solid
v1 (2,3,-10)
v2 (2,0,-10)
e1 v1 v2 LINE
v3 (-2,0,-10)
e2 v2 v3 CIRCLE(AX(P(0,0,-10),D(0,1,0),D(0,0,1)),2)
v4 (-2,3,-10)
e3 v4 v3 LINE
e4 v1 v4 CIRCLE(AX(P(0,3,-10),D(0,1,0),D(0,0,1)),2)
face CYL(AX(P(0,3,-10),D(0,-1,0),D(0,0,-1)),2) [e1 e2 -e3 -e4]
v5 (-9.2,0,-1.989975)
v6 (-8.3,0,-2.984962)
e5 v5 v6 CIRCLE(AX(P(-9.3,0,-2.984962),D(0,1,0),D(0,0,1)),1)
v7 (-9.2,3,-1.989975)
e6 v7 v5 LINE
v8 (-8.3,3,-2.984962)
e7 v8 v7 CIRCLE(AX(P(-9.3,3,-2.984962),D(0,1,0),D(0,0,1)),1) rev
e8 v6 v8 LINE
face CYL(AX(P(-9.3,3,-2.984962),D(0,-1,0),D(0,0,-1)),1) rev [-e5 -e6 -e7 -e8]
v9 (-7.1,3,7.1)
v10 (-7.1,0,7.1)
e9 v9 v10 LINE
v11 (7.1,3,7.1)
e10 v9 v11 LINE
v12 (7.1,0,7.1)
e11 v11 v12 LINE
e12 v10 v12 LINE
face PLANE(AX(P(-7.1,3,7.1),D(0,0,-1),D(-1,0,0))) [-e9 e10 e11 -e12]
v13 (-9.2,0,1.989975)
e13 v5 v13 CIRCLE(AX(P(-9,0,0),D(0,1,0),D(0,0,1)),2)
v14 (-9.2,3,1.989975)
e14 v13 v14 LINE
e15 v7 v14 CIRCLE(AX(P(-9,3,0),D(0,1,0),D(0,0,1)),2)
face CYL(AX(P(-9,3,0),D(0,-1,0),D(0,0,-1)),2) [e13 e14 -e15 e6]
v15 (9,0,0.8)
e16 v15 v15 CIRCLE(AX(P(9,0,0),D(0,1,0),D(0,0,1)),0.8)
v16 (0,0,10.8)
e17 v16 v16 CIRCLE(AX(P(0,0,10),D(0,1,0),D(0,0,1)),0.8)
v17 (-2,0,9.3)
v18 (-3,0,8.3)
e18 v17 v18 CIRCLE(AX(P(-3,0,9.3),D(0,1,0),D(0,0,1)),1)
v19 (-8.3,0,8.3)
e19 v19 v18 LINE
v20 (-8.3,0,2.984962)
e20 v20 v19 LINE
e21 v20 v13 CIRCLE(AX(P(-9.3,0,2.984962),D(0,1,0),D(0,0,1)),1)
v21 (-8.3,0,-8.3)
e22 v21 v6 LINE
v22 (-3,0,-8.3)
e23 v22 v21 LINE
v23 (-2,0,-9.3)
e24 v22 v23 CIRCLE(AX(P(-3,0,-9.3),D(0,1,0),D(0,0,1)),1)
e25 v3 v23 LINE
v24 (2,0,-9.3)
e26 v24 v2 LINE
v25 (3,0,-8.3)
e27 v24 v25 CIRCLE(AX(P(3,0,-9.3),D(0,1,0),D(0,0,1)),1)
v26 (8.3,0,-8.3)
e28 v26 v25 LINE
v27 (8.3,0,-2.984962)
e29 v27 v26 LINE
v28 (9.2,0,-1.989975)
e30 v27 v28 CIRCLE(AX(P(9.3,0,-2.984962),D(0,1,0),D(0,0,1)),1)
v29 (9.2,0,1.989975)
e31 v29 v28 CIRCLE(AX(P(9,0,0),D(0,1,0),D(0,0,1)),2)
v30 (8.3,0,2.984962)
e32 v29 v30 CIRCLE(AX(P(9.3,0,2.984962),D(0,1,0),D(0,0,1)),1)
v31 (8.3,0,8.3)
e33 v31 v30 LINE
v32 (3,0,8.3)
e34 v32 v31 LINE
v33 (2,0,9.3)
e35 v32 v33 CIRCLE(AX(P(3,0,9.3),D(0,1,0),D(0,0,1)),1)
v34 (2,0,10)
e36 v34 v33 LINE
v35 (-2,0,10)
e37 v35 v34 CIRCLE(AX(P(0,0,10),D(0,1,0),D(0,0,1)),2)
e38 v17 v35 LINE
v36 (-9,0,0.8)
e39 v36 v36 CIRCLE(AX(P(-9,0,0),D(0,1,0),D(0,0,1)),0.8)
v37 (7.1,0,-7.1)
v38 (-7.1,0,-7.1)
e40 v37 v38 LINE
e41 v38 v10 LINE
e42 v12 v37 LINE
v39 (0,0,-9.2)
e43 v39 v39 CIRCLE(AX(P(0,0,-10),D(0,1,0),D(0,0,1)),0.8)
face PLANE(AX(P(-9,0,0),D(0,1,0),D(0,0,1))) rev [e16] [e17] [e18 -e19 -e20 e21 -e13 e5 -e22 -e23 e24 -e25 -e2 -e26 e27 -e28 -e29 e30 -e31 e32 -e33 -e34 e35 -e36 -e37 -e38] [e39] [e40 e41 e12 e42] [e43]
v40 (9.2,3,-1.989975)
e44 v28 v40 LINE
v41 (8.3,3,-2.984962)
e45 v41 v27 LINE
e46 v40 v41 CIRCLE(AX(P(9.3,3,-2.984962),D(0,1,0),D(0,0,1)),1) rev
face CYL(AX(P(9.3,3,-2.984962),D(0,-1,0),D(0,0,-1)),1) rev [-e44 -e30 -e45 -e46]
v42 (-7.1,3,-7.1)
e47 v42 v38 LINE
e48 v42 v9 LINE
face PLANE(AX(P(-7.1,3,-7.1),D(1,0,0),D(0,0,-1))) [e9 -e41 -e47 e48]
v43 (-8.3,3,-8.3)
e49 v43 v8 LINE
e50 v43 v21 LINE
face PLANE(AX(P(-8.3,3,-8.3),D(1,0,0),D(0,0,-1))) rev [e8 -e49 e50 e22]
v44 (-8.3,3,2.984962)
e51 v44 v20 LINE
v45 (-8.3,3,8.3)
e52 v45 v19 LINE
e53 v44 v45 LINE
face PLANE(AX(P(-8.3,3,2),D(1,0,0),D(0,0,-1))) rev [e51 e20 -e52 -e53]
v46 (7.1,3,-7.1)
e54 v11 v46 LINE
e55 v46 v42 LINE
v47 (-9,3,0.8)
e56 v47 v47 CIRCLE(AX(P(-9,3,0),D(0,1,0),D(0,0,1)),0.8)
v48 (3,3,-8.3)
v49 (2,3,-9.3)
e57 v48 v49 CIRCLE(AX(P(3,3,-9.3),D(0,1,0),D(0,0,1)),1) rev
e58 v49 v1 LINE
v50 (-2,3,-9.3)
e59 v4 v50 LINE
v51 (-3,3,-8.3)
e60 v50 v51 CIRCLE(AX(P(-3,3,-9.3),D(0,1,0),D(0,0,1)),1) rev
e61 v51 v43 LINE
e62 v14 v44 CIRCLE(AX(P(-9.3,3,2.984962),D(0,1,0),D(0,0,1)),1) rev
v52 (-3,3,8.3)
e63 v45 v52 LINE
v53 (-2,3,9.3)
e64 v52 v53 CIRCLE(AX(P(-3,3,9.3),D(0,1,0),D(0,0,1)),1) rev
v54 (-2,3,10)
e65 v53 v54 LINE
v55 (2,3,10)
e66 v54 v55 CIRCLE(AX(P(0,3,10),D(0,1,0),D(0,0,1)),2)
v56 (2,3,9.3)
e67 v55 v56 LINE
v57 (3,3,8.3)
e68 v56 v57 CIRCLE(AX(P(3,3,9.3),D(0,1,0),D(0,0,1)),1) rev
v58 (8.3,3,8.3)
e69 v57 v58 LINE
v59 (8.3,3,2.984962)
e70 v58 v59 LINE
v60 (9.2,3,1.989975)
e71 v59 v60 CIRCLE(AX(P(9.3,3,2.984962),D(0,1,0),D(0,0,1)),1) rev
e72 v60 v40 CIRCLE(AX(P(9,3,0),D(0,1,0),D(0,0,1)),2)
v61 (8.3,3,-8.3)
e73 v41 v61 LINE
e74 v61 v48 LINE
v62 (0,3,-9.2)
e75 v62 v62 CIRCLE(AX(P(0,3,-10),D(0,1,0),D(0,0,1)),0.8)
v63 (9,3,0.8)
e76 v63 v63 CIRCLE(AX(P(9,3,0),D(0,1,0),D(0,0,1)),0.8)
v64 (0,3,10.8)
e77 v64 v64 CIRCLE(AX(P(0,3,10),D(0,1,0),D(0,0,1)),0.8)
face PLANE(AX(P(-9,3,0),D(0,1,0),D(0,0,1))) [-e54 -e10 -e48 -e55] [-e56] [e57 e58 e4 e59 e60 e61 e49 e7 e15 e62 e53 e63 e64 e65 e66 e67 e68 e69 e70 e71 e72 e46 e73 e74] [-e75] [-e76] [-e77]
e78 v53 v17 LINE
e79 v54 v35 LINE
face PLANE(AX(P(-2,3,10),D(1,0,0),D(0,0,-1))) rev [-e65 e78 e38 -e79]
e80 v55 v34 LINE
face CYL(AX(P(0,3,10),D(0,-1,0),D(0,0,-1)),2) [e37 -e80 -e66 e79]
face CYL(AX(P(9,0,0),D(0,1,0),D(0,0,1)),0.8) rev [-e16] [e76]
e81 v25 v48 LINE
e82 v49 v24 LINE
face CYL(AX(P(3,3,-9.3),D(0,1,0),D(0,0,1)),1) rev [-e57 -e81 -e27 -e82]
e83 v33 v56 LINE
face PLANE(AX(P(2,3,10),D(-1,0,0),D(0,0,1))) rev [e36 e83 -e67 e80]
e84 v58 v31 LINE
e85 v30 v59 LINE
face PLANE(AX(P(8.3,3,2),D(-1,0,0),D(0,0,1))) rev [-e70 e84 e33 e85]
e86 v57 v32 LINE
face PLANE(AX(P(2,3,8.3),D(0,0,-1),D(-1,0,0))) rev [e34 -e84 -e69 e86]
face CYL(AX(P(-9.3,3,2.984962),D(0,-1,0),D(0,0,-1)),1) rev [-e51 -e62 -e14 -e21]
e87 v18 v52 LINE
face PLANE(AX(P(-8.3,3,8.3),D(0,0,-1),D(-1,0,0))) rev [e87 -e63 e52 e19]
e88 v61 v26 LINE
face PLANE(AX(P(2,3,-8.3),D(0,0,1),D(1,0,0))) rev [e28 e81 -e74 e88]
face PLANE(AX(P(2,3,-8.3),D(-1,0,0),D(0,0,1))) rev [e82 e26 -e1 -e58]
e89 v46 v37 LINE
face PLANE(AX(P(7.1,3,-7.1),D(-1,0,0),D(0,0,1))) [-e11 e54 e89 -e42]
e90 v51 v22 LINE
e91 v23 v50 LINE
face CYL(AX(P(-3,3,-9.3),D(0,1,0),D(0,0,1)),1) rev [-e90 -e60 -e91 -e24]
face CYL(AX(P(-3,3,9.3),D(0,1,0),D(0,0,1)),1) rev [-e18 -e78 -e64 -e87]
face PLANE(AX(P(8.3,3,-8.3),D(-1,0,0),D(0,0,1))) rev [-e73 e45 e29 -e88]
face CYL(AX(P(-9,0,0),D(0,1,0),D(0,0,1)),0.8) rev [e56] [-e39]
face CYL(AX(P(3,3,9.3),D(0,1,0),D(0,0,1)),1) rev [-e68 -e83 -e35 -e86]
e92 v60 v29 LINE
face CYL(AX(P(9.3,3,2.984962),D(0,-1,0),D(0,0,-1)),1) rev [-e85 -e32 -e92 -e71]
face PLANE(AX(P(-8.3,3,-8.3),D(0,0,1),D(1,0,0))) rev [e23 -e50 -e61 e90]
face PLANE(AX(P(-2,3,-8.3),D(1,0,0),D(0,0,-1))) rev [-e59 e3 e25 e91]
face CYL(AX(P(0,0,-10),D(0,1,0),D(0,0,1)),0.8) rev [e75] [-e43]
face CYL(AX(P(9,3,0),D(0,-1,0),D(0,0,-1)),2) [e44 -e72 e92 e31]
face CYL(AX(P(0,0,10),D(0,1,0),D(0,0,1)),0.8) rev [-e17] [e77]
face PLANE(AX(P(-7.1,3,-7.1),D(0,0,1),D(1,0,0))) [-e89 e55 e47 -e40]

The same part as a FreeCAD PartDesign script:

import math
import FreeCAD as App
import Part
import Sketcher

V = App.Vector


def edges_at(feature, points):
    """Names of the edges that pass closest to the given points."""
    edges = feature.Shape.Edges
    near = lambda p: min(range(len(edges)), key=lambda i: edges[i].distToShape(Part.Vertex(*p))[0])
    return sorted({f"Edge{near(p) + 1}" for p in points})


def add_polygon(sketch, points):
    """Adds a closed chain of lines whose ends are joined by coincident constraints."""
    first, n = sketch.GeometryCount, len(points)
    for a, b in zip(points, points[1:] + points[:1]):
        sketch.addGeometry(Part.LineSegment(App.Vector(*a, 0), App.Vector(*b, 0)), False)
    for i in range(n):
        sketch.addConstraint(Sketcher.Constraint("Coincident", first + i, 2, first + (i + 1) % n, 1))

doc = App.newDocument("Part")
body = doc.addObject("PartDesign::Body", "Body")

sketch1 = doc.addObject("Sketcher::SketchObject", "Sketch")
body.addObject(sketch1)
sketch1.AttachmentSupport = (doc.XZ_Plane, [""])
sketch1.MapMode = "FlatFace"
sketch1.addGeometry(Part.LineSegment(V(-8.3, -2, 0), V(-9, -2, 0)), False)
sketch1.addGeometry(Part.ArcOfCircle(Part.Circle(V(-9, 0, 0), V(0, 0, 1), 2), math.radians(90), math.radians(270)), False)
sketch1.addGeometry(Part.LineSegment(V(-9, 2, 0), V(-8.3, 2, 0)), False)
sketch1.addGeometry(Part.LineSegment(V(-8.3, 2, 0), V(-8.3, 8.3, 0)), False)
sketch1.addGeometry(Part.LineSegment(V(-8.3, 8.3, 0), V(-2, 8.3, 0)), False)
sketch1.addGeometry(Part.LineSegment(V(-2, 8.3, 0), V(-2, 10, 0)), False)
sketch1.addGeometry(Part.ArcOfCircle(Part.Circle(V(0, 10, 0), V(0, 0, 1), 2), math.radians(0), math.radians(180)), False)
sketch1.addGeometry(Part.LineSegment(V(2, 10, 0), V(2, 8.3, 0)), False)
sketch1.addGeometry(Part.LineSegment(V(2, 8.3, 0), V(8.3, 8.3, 0)), False)
sketch1.addGeometry(Part.LineSegment(V(8.3, 8.3, 0), V(8.3, 2, 0)), False)
sketch1.addGeometry(Part.LineSegment(V(8.3, 2, 0), V(9, 2, 0)), False)
sketch1.addGeometry(Part.ArcOfCircle(Part.Circle(V(9, 0, 0), V(0, 0, 1), 2), math.radians(-90), math.radians(90)), False)
sketch1.addGeometry(Part.LineSegment(V(9, -2, 0), V(8.3, -2, 0)), False)
sketch1.addGeometry(Part.LineSegment(V(8.3, -2, 0), V(8.3, -8.3, 0)), False)
sketch1.addGeometry(Part.LineSegment(V(8.3, -8.3, 0), V(2, -8.3, 0)), False)
sketch1.addGeometry(Part.LineSegment(V(2, -8.3, 0), V(2, -10, 0)), False)
sketch1.addGeometry(Part.ArcOfCircle(Part.Circle(V(0, -10, 0), V(0, 0, 1), 2), math.radians(180), math.radians(360)), False)
sketch1.addGeometry(Part.LineSegment(V(-2, -10, 0), V(-2, -8.3, 0)), False)
sketch1.addGeometry(Part.LineSegment(V(-2, -8.3, 0), V(-8.3, -8.3, 0)), False)
sketch1.addGeometry(Part.LineSegment(V(-8.3, -8.3, 0), V(-8.3, -2, 0)), False)
add_polygon(sketch1, [(-7.1, 7.1), (-7.1, -7.1), (7.1, -7.1), (7.1, 7.1)])
sketch1.addConstraint(Sketcher.Constraint("Tangent", 0, 2, 1, 2))
sketch1.addConstraint(Sketcher.Constraint("Tangent", 1, 1, 2, 1))
sketch1.addConstraint(Sketcher.Constraint("Coincident", 2, 2, 3, 1))
sketch1.addConstraint(Sketcher.Constraint("Coincident", 3, 2, 4, 1))
sketch1.addConstraint(Sketcher.Constraint("Coincident", 4, 2, 5, 1))
sketch1.addConstraint(Sketcher.Constraint("Tangent", 5, 2, 6, 2))
sketch1.addConstraint(Sketcher.Constraint("Tangent", 6, 1, 7, 1))
sketch1.addConstraint(Sketcher.Constraint("Coincident", 7, 2, 8, 1))
sketch1.addConstraint(Sketcher.Constraint("Coincident", 8, 2, 9, 1))
sketch1.addConstraint(Sketcher.Constraint("Coincident", 9, 2, 10, 1))
sketch1.addConstraint(Sketcher.Constraint("Tangent", 10, 2, 11, 2))
sketch1.addConstraint(Sketcher.Constraint("Tangent", 11, 1, 12, 1))
sketch1.addConstraint(Sketcher.Constraint("Coincident", 12, 2, 13, 1))
sketch1.addConstraint(Sketcher.Constraint("Coincident", 13, 2, 14, 1))
sketch1.addConstraint(Sketcher.Constraint("Coincident", 14, 2, 15, 1))
sketch1.addConstraint(Sketcher.Constraint("Tangent", 15, 2, 16, 2))
sketch1.addConstraint(Sketcher.Constraint("Tangent", 16, 1, 17, 1))
sketch1.addConstraint(Sketcher.Constraint("Coincident", 17, 2, 18, 1))
sketch1.addConstraint(Sketcher.Constraint("Coincident", 18, 2, 19, 1))
sketch1.addConstraint(Sketcher.Constraint("Coincident", 19, 2, 0, 1))
sketch1.addConstraint(Sketcher.Constraint("Horizontal", 0))
sketch1.addConstraint(Sketcher.Constraint("Horizontal", 2))
sketch1.addConstraint(Sketcher.Constraint("Vertical", 3))
sketch1.addConstraint(Sketcher.Constraint("Horizontal", 4))
sketch1.addConstraint(Sketcher.Constraint("Vertical", 5))
sketch1.addConstraint(Sketcher.Constraint("Vertical", 7))
sketch1.addConstraint(Sketcher.Constraint("Horizontal", 8))
sketch1.addConstraint(Sketcher.Constraint("Vertical", 9))
sketch1.addConstraint(Sketcher.Constraint("Horizontal", 10))
sketch1.addConstraint(Sketcher.Constraint("Horizontal", 12))
sketch1.addConstraint(Sketcher.Constraint("Vertical", 13))
sketch1.addConstraint(Sketcher.Constraint("Horizontal", 14))
sketch1.addConstraint(Sketcher.Constraint("Vertical", 15))
sketch1.addConstraint(Sketcher.Constraint("Vertical", 17))
sketch1.addConstraint(Sketcher.Constraint("Horizontal", 18))
sketch1.addConstraint(Sketcher.Constraint("Vertical", 19))
sketch1.addConstraint(Sketcher.Constraint("Vertical", 20))
sketch1.addConstraint(Sketcher.Constraint("Horizontal", 21))
sketch1.addConstraint(Sketcher.Constraint("Vertical", 22))
sketch1.addConstraint(Sketcher.Constraint("Horizontal", 23))
sketch1.addConstraint(Sketcher.Constraint("Equal", 1, 6))
sketch1.addConstraint(Sketcher.Constraint("Equal", 6, 11))
sketch1.addConstraint(Sketcher.Constraint("Equal", 11, 16))
sketch1.addConstraint(Sketcher.Constraint("Symmetric", 1, 3, 11, 3, -1, 1))
sketch1.addConstraint(Sketcher.Constraint("Symmetric", 6, 3, 16, 3, -1, 1))
sketch1.addConstraint(Sketcher.Constraint("Symmetric", 3, 2, 13, 2, -1, 1))
sketch1.addConstraint(Sketcher.Constraint("Symmetric", 8, 2, 18, 2, -1, 1))
sketch1.addConstraint(Sketcher.Constraint("Symmetric", 20, 2, 22, 2, -1, 1))
sketch1.addConstraint(Sketcher.Constraint("Symmetric", 4, 2, 7, 2, -2))
sketch1.addConstraint(Sketcher.Constraint("Symmetric", 2, 2, 9, 2, -2))
sketch1.addConstraint(Sketcher.Constraint("Equal", 18, 3))
sketch1.addConstraint(Sketcher.Constraint("Equal", 23, 20))
sketch1.addConstraint(Sketcher.Constraint("Radius", 1, 2.0))
sketch1.addConstraint(Sketcher.Constraint("DistanceX", 0, 2, 0, 1, 0.7))
sketch1.addConstraint(Sketcher.Constraint("DistanceX", 4, 1, 4, 2, 6.3))
sketch1.addConstraint(Sketcher.Constraint("DistanceX", 21, 1, 21, 2, 14.2))
sketch1.addConstraint(Sketcher.Constraint("DistanceY", 5, 1, 5, 2, 1.7))
pad1 = doc.addObject("PartDesign::Pad", "Pad")
body.addObject(pad1)
pad1.Profile = sketch1
pad1.Length = 3
pad1.Reversed = True

sketch2 = doc.addObject("Sketcher::SketchObject", "Sketch001")
body.addObject(sketch2)
sketch2.AttachmentSupport = (doc.XZ_Plane, [""])
sketch2.MapMode = "FlatFace"
sketch2.AttachmentOffset = App.Placement(V(0, 0, -3), App.Rotation())
sketch2.addGeometry(Part.Circle(V(0, -10, 0), V(0, 0, 1), 0.8), False)
sketch2.addGeometry(Part.Circle(V(9, 0, 0), V(0, 0, 1), 0.8), False)
sketch2.addGeometry(Part.Circle(V(0, 10, 0), V(0, 0, 1), 0.8), False)
sketch2.addGeometry(Part.Circle(V(-9, 0, 0), V(0, 0, 1), 0.8), False)
sketch2.addConstraint(Sketcher.Constraint("Equal", 0, 1))
sketch2.addConstraint(Sketcher.Constraint("Equal", 1, 2))
sketch2.addConstraint(Sketcher.Constraint("Equal", 2, 3))
sketch2.addConstraint(Sketcher.Constraint("Symmetric", 0, 3, 2, 3, -1, 1))
sketch2.addConstraint(Sketcher.Constraint("Symmetric", 1, 3, 3, 3, -1, 1))
sketch2.addConstraint(Sketcher.Constraint("PointOnObject", 0, 3, -2))
sketch2.addConstraint(Sketcher.Constraint("PointOnObject", 1, 3, -1))
sketch2.addConstraint(Sketcher.Constraint("Diameter", 0, 1.6))
sketch2.addConstraint(Sketcher.Constraint("DistanceY", 0, 3, -1, 1, 10.0))
sketch2.addConstraint(Sketcher.Constraint("DistanceX", -1, 1, 1, 3, 9.0))
pocket1 = doc.addObject("PartDesign::Pocket", "Pocket")
body.addObject(pocket1)
pocket1.Profile = sketch2
pocket1.Type = "ThroughAll"
pocket1.Reversed = True
doc.recompute()

fillet = doc.addObject("PartDesign::Fillet", "Fillet")
body.addObject(fillet)
fillet.Base = (pocket1, edges_at(pocket1, [
    (-2, 1.5, 8.3),
    (2, 1.5, 8.3),
    (8.3, 1.5, 2),
    (8.3, 1.5, -2),
    (2, 1.5, -8.3),
    (-2, 1.5, -8.3),
    (-8.3, 1.5, -2),
    (-8.3, 1.5, 2),
]))
fillet.Radius = 1

doc.recompute()
